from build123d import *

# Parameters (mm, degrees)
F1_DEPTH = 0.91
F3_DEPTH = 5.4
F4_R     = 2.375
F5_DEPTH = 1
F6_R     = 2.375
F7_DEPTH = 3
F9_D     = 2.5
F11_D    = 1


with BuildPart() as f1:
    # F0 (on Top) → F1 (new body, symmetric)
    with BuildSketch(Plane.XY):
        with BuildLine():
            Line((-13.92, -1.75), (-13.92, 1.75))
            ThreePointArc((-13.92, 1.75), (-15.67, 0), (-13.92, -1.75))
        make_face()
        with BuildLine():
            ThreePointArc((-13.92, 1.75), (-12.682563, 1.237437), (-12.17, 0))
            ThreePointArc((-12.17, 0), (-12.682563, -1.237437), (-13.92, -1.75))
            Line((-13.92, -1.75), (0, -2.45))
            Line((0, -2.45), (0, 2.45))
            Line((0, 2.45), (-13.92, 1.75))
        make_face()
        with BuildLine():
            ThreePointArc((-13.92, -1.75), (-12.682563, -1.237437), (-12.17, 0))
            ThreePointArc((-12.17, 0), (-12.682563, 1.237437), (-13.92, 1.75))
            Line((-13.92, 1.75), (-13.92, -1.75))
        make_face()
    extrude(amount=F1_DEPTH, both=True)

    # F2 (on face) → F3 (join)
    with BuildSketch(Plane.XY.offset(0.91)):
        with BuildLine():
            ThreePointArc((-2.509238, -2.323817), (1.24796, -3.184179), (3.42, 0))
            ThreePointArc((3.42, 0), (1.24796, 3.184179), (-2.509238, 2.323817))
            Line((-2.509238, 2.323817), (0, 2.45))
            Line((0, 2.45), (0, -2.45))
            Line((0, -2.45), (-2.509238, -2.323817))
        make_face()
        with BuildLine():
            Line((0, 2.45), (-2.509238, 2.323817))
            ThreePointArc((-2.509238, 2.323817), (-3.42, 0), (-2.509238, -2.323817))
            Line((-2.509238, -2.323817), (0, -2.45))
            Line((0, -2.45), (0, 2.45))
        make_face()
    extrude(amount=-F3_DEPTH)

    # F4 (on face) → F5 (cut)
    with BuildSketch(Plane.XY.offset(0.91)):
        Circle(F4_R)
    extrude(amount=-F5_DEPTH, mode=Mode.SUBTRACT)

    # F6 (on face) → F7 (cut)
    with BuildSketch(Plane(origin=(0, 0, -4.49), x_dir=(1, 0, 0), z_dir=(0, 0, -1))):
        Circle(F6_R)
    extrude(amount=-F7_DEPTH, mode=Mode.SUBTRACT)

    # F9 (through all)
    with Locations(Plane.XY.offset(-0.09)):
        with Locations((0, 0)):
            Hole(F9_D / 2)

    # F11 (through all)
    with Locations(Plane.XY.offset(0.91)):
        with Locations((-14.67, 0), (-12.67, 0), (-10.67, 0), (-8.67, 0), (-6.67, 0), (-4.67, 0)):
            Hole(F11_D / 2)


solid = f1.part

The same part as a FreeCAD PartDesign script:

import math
import FreeCAD as App
import Part
import Sketcher
from FreeCAD import Vector

doc = App.newDocument("Part")
body = doc.addObject("PartDesign::Body", "Body")

# Sketch on XY plane
sketch1 = doc.addObject("Sketcher::SketchObject", "Sketch")
body.addObject(sketch1)
sketch1.AttachmentSupport = (doc.XY_Plane, [""])
sketch1.MapMode = "FlatFace"
sketch1.addGeometry(Part.ArcOfCircle(Part.Circle(Vector(-13.9, 0, 0), Vector(0, 0, 1), 1.8), math.radians(90), math.radians(270)), False)
sketch1.addGeometry(Part.LineSegment(Vector(-13.9, -1.8, 0), Vector(0, -2.5, 0)), False)
sketch1.addGeometry(Part.LineSegment(Vector(0, -2.5, 0), Vector(0, 2.5, 0)), False)
sketch1.addGeometry(Part.LineSegment(Vector(0, 2.5, 0), Vector(-13.9, 1.8, 0)), False)
sketch1.addConstraint(Sketcher.Constraint("Coincident", 0, 2, 1, 1))
sketch1.addConstraint(Sketcher.Constraint("Coincident", 1, 2, 2, 1))
sketch1.addConstraint(Sketcher.Constraint("Coincident", 2, 2, 3, 1))
sketch1.addConstraint(Sketcher.Constraint("Coincident", 3, 2, 0, 1))
sketch1.addConstraint(Sketcher.Constraint("Vertical", 2))
sketch1.addConstraint(Sketcher.Constraint("Symmetric", 1, 2, 2, 2, -1, 1))
sketch1.addConstraint(Sketcher.Constraint("Symmetric", 0, 2, 3, 2, -1))
sketch1.addConstraint(Sketcher.Constraint("Radius", 0, 1.75))
sketch1.addConstraint(Sketcher.Constraint("DistanceY", 2, 1, 2, 2, 4.9))
sketch1.addConstraint(Sketcher.Constraint("DistanceX", 0, 3, -1, 1, 13.92))
sketch1.addConstraint(Sketcher.Constraint("DistanceX", 0, 2, -1, 1, 13.92))
pad1 = doc.addObject("PartDesign::Pad", "Pad")
body.addObject(pad1)
pad1.Profile = sketch1
pad1.Length = 1.82
pad1.Midplane = True

# Sketch on XY plane
sketch2 = doc.addObject("Sketcher::SketchObject", "Sketch001")
body.addObject(sketch2)
sketch2.AttachmentSupport = (doc.XY_Plane, [""])
sketch2.MapMode = "FlatFace"
sketch2.AttachmentOffset = App.Placement(Vector(0, 0, 0.91), App.Rotation())
sketch2.addGeometry(Part.ArcOfCircle(Part.Circle(Vector(0, 0, 0), Vector(0, 0, 1), 3.4), math.radians(-137), math.radians(0)), False)
sketch2.addGeometry(Part.ArcOfCircle(Part.Circle(Vector(0, 0, 0), Vector(0, 0, 1), 3.4), math.radians(0), math.radians(137)), False)
sketch2.addGeometry(Part.ArcOfCircle(Part.Circle(Vector(0, 0, 0), Vector(0, 0, 1), 3.4), math.radians(137), math.radians(223)), False)
sketch2.addConstraint(Sketcher.Constraint("Tangent", 0, 2, 1, 1))
sketch2.addConstraint(Sketcher.Constraint("Tangent", 1, 2, 2, 1))
sketch2.addConstraint(Sketcher.Constraint("Tangent", 2, 2, 0, 1))
sketch2.addConstraint(Sketcher.Constraint("Coincident", 0, 3, -1, 1))
sketch2.addConstraint(Sketcher.Constraint("PointOnObject", 0, 2, -1))
sketch2.addConstraint(Sketcher.Constraint("Vertical", 1, 2, 2, 2))
sketch2.addConstraint(Sketcher.Constraint("Radius", 0, 3.42))
sketch2.addConstraint(Sketcher.Constraint("DistanceX", 2, 2, -1, 1, 2.509238))
pad2 = doc.addObject("PartDesign::Pad", "Pad001")
body.addObject(pad2)
pad2.Profile = sketch2
pad2.Length = 5.4
pad2.Reversed = True

# Sketch on XY plane
sketch3 = doc.addObject("Sketcher::SketchObject", "Sketch002")
body.addObject(sketch3)
sketch3.AttachmentSupport = (doc.XY_Plane, [""])
sketch3.MapMode = "FlatFace"
sketch3.AttachmentOffset = App.Placement(Vector(0, 0, 0.91), App.Rotation())
sketch3.addGeometry(Part.Circle(Vector(0, 0, 0), Vector(0, 0, 1), 2.4), False)
sketch3.addConstraint(Sketcher.Constraint("Coincident", 0, 3, -1, 1))
sketch3.addConstraint(Sketcher.Constraint("Diameter", 0, 4.75))
pocket1 = doc.addObject("PartDesign::Pocket", "Pocket")
body.addObject(pocket1)
pocket1.Profile = sketch3
pocket1.Length = 1

# Sketch on XY plane
sketch4 = doc.addObject("Sketcher::SketchObject", "Sketch003")
body.addObject(sketch4)
sketch4.AttachmentSupport = (doc.XY_Plane, [""])
sketch4.MapMode = "FlatFace"
sketch4.AttachmentOffset = App.Placement(Vector(0, 0, -4.49), App.Rotation())
sketch4.addGeometry(Part.Circle(Vector(0, 0, 0), Vector(0, 0, 1), 2.4), False)
sketch4.addConstraint(Sketcher.Constraint("Coincident", 0, 3, -1, 1))
sketch4.addConstraint(Sketcher.Constraint("Diameter", 0, 4.75))
pocket2 = doc.addObject("PartDesign::Pocket", "Pocket001")
body.addObject(pocket2)
pocket2.Profile = sketch4
pocket2.Length = 3
pocket2.Reversed = True

# Sketch on XY plane
sketch5 = doc.addObject("Sketcher::SketchObject", "Sketch004")
body.addObject(sketch5)
sketch5.AttachmentSupport = (doc.XY_Plane, [""])
sketch5.MapMode = "FlatFace"
sketch5.AttachmentOffset = App.Placement(Vector(0, 0, -0.09), App.Rotation())
sketch5.addGeometry(Part.Circle(Vector(0, 0, 0), Vector(0, 0, 1), 1.2), False)
sketch5.addConstraint(Sketcher.Constraint("Coincident", 0, 3, -1, 1))
sketch5.addConstraint(Sketcher.Constraint("Diameter", 0, 2.5))
doc.recompute()
hole = doc.addObject("PartDesign::Hole", "Hole")
body.addObject(hole)
hole.Profile = sketch5
hole.ThreadType = "None"
hole.Diameter = 2.5
hole.DepthType = "ThroughAll"

# Sketch on XY plane
sketch6 = doc.addObject("Sketcher::SketchObject", "Sketch005")
body.addObject(sketch6)
sketch6.AttachmentSupport = (doc.XY_Plane, [""])
sketch6.MapMode = "FlatFace"
sketch6.AttachmentOffset = App.Placement(Vector(0, 0, 0.91), App.Rotation())
sketch6.addGeometry(Part.Circle(Vector(-14.7, 0, 0), Vector(0, 0, 1), 0.5), False)
sketch6.addGeometry(Part.Circle(Vector(-12.7, 0, 0), Vector(0, 0, 1), 0.5), False)
sketch6.addGeometry(Part.Circle(Vector(-10.7, 0, 0), Vector(0, 0, 1), 0.5), False)
sketch6.addGeometry(Part.Circle(Vector(-8.7, 0, 0), Vector(0, 0, 1), 0.5), False)
sketch6.addGeometry(Part.Circle(Vector(-6.7, 0, 0), Vector(0, 0, 1), 0.5), False)
sketch6.addGeometry(Part.Circle(Vector(-4.7, 0, 0), Vector(0, 0, 1), 0.5), False)
sketch6.addConstraint(Sketcher.Constraint("Equal", 0, 1))
sketch6.addConstraint(Sketcher.Constraint("Equal", 1, 2))
sketch6.addConstraint(Sketcher.Constraint("Equal", 2, 3))
sketch6.addConstraint(Sketcher.Constraint("Equal", 3, 4))
sketch6.addConstraint(Sketcher.Constraint("Equal", 4, 5))
sketch6.addConstraint(Sketcher.Constraint("PointOnObject", 0, 3, -1))
sketch6.addConstraint(Sketcher.Constraint("PointOnObject", 1, 3, -1))
sketch6.addConstraint(Sketcher.Constraint("PointOnObject", 2, 3, -1))
sketch6.addConstraint(Sketcher.Constraint("PointOnObject", 3, 3, -1))
sketch6.addConstraint(Sketcher.Constraint("PointOnObject", 4, 3, -1))
sketch6.addConstraint(Sketcher.Constraint("PointOnObject", 5, 3, -1))
sketch6.addConstraint(Sketcher.Constraint("Diameter", 0, 1.0))
sketch6.addConstraint(Sketcher.Constraint("DistanceX", 0, 3, 1, 3, 2.0))
sketch6.addConstraint(Sketcher.Constraint("DistanceX", 1, 3, 2, 3, 2.0))
sketch6.addConstraint(Sketcher.Constraint("DistanceX", 2, 3, 3, 3, 2.0))
sketch6.addConstraint(Sketcher.Constraint("DistanceX", 3, 3, 4, 3, 2.0))
sketch6.addConstraint(Sketcher.Constraint("DistanceX", 4, 3, 5, 3, 2.0))
sketch6.addConstraint(Sketcher.Constraint("DistanceX", 0, 3, -1, 1, 14.67))
doc.recompute()
hole2 = doc.addObject("PartDesign::Hole", "Hole001")
body.addObject(hole2)
hole2.Profile = sketch6
hole2.ThreadType = "None"
hole2.Diameter = 1
hole2.DepthType = "ThroughAll"

doc.recompute()
